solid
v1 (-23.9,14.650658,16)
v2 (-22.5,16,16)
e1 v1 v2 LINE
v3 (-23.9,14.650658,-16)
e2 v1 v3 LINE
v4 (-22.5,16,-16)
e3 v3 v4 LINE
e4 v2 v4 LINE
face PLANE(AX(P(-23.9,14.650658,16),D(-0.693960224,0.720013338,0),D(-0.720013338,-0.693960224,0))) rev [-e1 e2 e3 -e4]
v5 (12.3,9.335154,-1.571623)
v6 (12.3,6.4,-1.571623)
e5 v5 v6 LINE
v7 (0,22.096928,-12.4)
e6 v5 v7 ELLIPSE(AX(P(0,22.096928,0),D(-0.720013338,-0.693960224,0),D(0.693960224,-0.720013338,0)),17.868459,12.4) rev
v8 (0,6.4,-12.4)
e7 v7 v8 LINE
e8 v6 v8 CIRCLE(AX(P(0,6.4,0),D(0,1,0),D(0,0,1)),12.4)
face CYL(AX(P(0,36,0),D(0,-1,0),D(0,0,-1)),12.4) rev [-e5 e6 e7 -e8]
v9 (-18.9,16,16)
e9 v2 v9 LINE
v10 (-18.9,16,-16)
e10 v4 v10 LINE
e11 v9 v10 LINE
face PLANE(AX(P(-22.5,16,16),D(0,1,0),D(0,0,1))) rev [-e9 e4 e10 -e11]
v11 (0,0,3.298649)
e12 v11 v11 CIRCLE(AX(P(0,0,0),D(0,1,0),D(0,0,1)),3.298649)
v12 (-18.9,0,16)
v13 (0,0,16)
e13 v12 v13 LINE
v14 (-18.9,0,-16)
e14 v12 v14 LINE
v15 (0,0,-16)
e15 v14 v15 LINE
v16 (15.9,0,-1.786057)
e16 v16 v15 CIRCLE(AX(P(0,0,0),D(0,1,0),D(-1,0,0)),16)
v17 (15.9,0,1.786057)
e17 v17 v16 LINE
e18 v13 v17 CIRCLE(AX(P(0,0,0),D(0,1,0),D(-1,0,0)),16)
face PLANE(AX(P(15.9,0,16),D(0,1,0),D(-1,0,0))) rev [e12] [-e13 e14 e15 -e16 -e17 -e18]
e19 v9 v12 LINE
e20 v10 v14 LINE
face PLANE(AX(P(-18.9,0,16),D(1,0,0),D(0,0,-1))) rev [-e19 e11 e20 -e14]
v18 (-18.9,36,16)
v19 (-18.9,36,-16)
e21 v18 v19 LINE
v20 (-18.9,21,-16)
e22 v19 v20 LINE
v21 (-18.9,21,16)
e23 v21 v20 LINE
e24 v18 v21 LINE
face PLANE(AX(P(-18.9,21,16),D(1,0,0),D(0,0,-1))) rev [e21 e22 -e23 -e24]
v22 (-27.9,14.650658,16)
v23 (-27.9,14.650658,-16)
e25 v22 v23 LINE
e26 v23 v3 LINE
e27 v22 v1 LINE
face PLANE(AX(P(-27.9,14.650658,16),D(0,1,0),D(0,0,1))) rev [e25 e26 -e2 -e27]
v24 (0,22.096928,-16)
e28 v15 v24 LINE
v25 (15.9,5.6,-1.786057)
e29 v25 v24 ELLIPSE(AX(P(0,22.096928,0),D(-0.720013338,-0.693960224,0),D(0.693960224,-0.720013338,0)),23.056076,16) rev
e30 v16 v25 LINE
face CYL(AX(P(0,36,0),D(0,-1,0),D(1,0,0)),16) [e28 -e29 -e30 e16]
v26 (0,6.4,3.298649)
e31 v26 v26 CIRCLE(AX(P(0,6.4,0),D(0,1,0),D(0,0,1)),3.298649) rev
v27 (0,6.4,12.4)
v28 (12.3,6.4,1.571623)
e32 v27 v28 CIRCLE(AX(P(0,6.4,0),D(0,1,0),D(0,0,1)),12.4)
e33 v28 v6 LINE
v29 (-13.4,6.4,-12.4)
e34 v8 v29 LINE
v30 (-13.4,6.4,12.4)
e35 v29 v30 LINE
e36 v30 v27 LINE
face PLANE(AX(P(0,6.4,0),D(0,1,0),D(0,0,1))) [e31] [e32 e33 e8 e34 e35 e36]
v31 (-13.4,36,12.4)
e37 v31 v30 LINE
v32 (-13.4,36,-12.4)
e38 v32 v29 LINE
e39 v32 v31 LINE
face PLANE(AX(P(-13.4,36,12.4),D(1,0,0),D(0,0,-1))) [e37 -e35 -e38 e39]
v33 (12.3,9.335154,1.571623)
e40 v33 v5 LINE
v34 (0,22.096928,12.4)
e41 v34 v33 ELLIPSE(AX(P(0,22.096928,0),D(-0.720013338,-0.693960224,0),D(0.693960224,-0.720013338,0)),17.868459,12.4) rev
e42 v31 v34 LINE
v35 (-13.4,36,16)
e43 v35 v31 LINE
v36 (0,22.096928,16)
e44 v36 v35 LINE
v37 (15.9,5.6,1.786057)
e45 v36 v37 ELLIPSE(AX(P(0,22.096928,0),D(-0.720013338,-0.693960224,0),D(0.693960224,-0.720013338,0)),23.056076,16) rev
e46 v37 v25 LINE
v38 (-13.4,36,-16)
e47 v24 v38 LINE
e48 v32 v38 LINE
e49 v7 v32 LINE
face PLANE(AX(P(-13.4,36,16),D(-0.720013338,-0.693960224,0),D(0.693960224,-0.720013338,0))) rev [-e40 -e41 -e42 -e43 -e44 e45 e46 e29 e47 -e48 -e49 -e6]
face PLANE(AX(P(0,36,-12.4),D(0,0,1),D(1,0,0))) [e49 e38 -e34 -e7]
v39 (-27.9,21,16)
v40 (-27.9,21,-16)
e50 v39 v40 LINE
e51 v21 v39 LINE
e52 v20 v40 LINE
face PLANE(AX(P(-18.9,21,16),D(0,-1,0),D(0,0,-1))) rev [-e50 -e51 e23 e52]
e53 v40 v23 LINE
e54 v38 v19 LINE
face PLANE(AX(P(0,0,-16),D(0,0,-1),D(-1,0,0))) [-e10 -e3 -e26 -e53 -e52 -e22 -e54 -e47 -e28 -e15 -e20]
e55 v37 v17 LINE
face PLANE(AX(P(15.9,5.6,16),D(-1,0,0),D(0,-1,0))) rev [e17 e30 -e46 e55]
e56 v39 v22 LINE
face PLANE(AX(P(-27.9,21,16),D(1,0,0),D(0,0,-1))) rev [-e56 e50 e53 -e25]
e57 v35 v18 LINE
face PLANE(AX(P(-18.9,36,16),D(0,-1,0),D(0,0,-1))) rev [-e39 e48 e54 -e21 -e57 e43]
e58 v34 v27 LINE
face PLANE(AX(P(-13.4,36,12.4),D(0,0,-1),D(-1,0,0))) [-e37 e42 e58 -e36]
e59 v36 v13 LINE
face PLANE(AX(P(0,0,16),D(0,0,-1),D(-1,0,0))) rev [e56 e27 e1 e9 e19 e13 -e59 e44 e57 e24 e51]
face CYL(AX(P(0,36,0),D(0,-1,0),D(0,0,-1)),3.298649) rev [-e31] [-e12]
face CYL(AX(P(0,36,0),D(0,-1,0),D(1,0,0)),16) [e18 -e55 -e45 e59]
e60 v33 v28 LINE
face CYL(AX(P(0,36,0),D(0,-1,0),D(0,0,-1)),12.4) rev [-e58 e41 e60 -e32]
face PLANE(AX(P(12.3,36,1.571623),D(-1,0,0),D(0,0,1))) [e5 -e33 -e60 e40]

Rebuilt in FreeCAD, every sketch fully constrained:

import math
import FreeCAD as App
import Part
import Sketcher
Q = App.Units.Quantity


def add_polygon(sketch, points):
    """Adds a closed chain of lines whose ends are joined by coincident constraints."""
    first, n = sketch.GeometryCount, len(points)
    for a, b in zip(points, points[1:] + points[:1]):
        sketch.addGeometry(Part.LineSegment(App.Vector(*a, 0), App.Vector(*b, 0)), False)
    for i in range(n):
        sketch.addConstraint(Sketcher.Constraint("Coincident", first + i, 2, first + (i + 1) % n, 1))

doc = App.newDocument("Part")
body = doc.addObject("PartDesign::Body", "Body")

# Sketch on XY plane
sketch1 = doc.addObject("Sketcher::SketchObject", "Sketch")
body.addObject(sketch1)
sketch1.AttachmentSupport = (doc.XY_Plane, [""])
sketch1.MapMode = "FlatFace"
add_polygon(sketch1, [(-18.9, 0), (15.9, 0), (15.9, 5.6), (-13.4, 36), (-18.9, 36), (-18.9, 21), (-27.9, 21), (-27.9, 14.7), (-23.9, 14.7), (-22.5, 16), (-18.9, 16)])  # lines 0-10
sketch1.addConstraint([
    Sketcher.Constraint("Horizontal", 0),
    Sketcher.Constraint("Vertical", 1),
    Sketcher.Constraint("Horizontal", 3),
    Sketcher.Constraint("Vertical", 4),
    Sketcher.Constraint("Horizontal", 5),
    Sketcher.Constraint("Vertical", 6),
    Sketcher.Constraint("Horizontal", 7),
    Sketcher.Constraint("Horizontal", 9),
    Sketcher.Constraint("Vertical", 10),
    Sketcher.Constraint("PointOnObject", 0, 2, -1),
    Sketcher.Constraint("Perpendicular", 2, 8),
    Sketcher.Constraint("Vertical", 4, 2, 9, 2),
    Sketcher.Constraint("DistanceX", 5, 2, 5, 1, Q("9 mm")),
    Sketcher.Constraint("DistanceX", 7, 1, 7, 2, Q("4 mm")),
    Sketcher.Constraint("DistanceY", 4, 2, 4, 1, Q("15 mm")),
    Sketcher.Constraint("DistanceY", 10, 2, 10, 1, Q("16 mm")),
    Sketcher.Constraint("DistanceX", 0, 1, 0, 2, Q("34.8 mm")),
    Sketcher.Constraint("DistanceX", 3, 2, 3, 1, Q("5.5 mm")),
    Sketcher.Constraint("DistanceX", 9, 1, 9, 2, Q("3.6 mm")),
    Sketcher.Constraint("DistanceY", 1, 1, 1, 2, Q("5.6 mm")),
    Sketcher.Constraint("DistanceY", -1, 1, 2, 2, Q("36 mm")),
    Sketcher.Constraint("DistanceX", -1, 1, 0, 2, Q("15.9 mm")),
])
pad1 = doc.addObject("PartDesign::Pad", "Pad")
body.addObject(pad1)
pad1.Profile = sketch1
pad1.Length = 32
pad1.Midplane = True

# Sketch on XZ plane
sketch2 = doc.addObject("Sketcher::SketchObject", "Sketch001")
body.addObject(sketch2)
sketch2.AttachmentSupport = (doc.XZ_Plane, [""])
sketch2.MapMode = "FlatFace"
sketch2.addGeometry([
    Part.LineSegment(App.Vector(0, 22, 0), App.Vector(0, 16, 0)),  # 0
    Part.ArcOfCircle(Part.Circle(App.Vector(0, 0, 0), App.Vector(0, 0, 1), 16), math.radians(-90), math.radians(90)),  # 1
    Part.LineSegment(App.Vector(0, -16, 0), App.Vector(0, -23, 0)),  # 2
    Part.LineSegment(App.Vector(0, -23, 0), App.Vector(25, -23, 0)),  # 3
    Part.LineSegment(App.Vector(25, -23, 0), App.Vector(25, 22, 0)),  # 4
    Part.LineSegment(App.Vector(25, 22, 0), App.Vector(0, 22, 0)),  # 5
], False)
sketch2.addConstraint([
    Sketcher.Constraint("Coincident", 0, 2, 1, 2),
    Sketcher.Constraint("Coincident", 1, 1, 2, 1),
    Sketcher.Constraint("Coincident", 2, 2, 3, 1),
    Sketcher.Constraint("Coincident", 3, 2, 4, 1),
    Sketcher.Constraint("Coincident", 4, 2, 5, 1),
    Sketcher.Constraint("Coincident", 5, 2, 0, 1),
    Sketcher.Constraint("Vertical", 0),
    Sketcher.Constraint("Vertical", 2),
    Sketcher.Constraint("Horizontal", 3),
    Sketcher.Constraint("Vertical", 4),
    Sketcher.Constraint("Horizontal", 5),
    Sketcher.Constraint("Coincident", 1, 3, -1, 1),
    Sketcher.Constraint("PointOnObject", 0, 2, -2),
    Sketcher.Constraint("PointOnObject", 1, 1, -2),
    Sketcher.Constraint("Radius", 1, Q("16 mm")),
    Sketcher.Constraint("DistanceY", 0, 2, 0, 1, Q("6.397201 mm")),
    Sketcher.Constraint("DistanceY", 4, 1, 4, 2, Q("45.333538 mm")),
    Sketcher.Constraint("DistanceX", 3, 1, 3, 2, Q("24.633268 mm")),
])
pocket1 = doc.addObject("PartDesign::Pocket", "Pocket")
body.addObject(pocket1)
pocket1.Profile = sketch2
pocket1.Type = "ThroughAll"

# Sketch on XZ plane
sketch3 = doc.addObject("Sketcher::SketchObject", "Sketch002")
body.addObject(sketch3)
sketch3.AttachmentSupport = (doc.XZ_Plane, [""])
sketch3.MapMode = "FlatFace"
sketch3.AttachmentOffset = App.Placement(App.Vector(0, 0, -6.4), App.Rotation())
sketch3.addGeometry([
    Part.LineSegment(App.Vector(-13.4, -12.4, 0), App.Vector(-13.4, 12.4, 0)),  # 0
    Part.LineSegment(App.Vector(-13.4, 12.4, 0), App.Vector(0, 12.4, 0)),  # 1
    Part.ArcOfCircle(Part.Circle(App.Vector(0, 0, 0), App.Vector(0, 0, 1), 12.4), math.radians(7), math.radians(90)),  # 2
    Part.LineSegment(App.Vector(12.3, 1.6, 0), App.Vector(12.3, -1.6, 0)),  # 3
    Part.ArcOfCircle(Part.Circle(App.Vector(0, 0, 0), App.Vector(0, 0, 1), 12.4), math.radians(-90), math.radians(-7)),  # 4
    Part.LineSegment(App.Vector(0, -12.4, 0), App.Vector(-13.4, -12.4, 0)),  # 5
], False)
sketch3.addConstraint([
    Sketcher.Constraint("Coincident", 0, 2, 1, 1),
    Sketcher.Constraint("Tangent", 1, 2, 2, 2),
    Sketcher.Constraint("Coincident", 2, 1, 3, 1),
    Sketcher.Constraint("Coincident", 3, 2, 4, 2),
    Sketcher.Constraint("Tangent", 4, 1, 5, 1),
    Sketcher.Constraint("Coincident", 5, 2, 0, 1),
    Sketcher.Constraint("Vertical", 0),
    Sketcher.Constraint("Horizontal", 1),
    Sketcher.Constraint("Vertical", 3),
    Sketcher.Constraint("Horizontal", 5),
    Sketcher.Constraint("Coincident", 2, 3, -1, 1),
    Sketcher.Constraint("Coincident", 4, 3, -1, 1),
    Sketcher.Constraint("Equal", 2, 4),
    Sketcher.Constraint("Radius", 2, Q("12.4 mm")),
    Sketcher.Constraint("DistanceX", 1, 1, 1, 2, Q("13.4 mm")),
    Sketcher.Constraint("DistanceX", -1, 1, 2, 1, Q("12.3 mm")),
])
pocket2 = doc.addObject("PartDesign::Pocket", "Pocket001")
body.addObject(pocket2)
pocket2.Profile = sketch3
pocket2.Type = "ThroughAll"

# Sketch on XZ plane
sketch4 = doc.addObject("Sketcher::SketchObject", "Sketch003")
body.addObject(sketch4)
sketch4.AttachmentSupport = (doc.XZ_Plane, [""])
sketch4.MapMode = "FlatFace"
sketch4.addGeometry(Part.Circle(App.Vector(0, 0, 0), App.Vector(0, 0, 1), 3.3), False)
sketch4.addConstraint([
    Sketcher.Constraint("Coincident", 0, 3, -1, 1),
    Sketcher.Constraint("Diameter", 0, Q("6.597298 mm")),
])
pocket3 = doc.addObject("PartDesign::Pocket", "Pocket002")
body.addObject(pocket3)
pocket3.Profile = sketch4
pocket3.Type = "ThroughAll"

doc.recompute()
